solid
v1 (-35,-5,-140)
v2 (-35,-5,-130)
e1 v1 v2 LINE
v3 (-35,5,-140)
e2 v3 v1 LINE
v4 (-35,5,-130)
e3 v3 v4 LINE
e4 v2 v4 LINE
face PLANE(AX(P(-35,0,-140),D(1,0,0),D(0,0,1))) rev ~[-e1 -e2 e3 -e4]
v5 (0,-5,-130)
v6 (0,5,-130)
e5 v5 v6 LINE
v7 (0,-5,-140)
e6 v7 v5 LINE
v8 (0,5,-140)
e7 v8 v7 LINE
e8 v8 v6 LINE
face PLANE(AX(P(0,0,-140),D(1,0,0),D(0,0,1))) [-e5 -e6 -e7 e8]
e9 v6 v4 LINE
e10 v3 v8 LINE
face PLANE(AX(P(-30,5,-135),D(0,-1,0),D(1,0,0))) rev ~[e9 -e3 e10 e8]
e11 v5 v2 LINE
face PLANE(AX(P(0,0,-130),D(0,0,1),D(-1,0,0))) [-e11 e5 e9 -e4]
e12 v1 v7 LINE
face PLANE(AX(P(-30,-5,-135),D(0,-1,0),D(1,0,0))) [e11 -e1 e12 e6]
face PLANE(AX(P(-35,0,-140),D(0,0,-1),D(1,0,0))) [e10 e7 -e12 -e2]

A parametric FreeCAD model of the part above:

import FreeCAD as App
import Part
import Sketcher
from FreeCAD import Vector

doc = App.newDocument("Part")
body = doc.addObject("PartDesign::Body", "Body")

sketch1 = body.newObject("Sketcher::SketchObject", "Sketch")
sketch1.AttachmentSupport = (doc.getObject("XZ_Plane"), [""])
sketch1.MapMode = "FlatFace"
sketch1.addGeometry([
    Part.LineSegment(Vector(-35, -130, 0), Vector(-35, -140, 0)),
    Part.LineSegment(Vector(-35, -140, 0), Vector(0, -140, 0)),
    Part.LineSegment(Vector(0, -140, 0), Vector(0, -130, 0)),
    Part.LineSegment(Vector(0, -130, 0), Vector(-35, -130, 0)),
], False)
sketch1.addConstraint([
    Sketcher.Constraint("Coincident", 0, 2, 1, 1),
    Sketcher.Constraint("Coincident", 1, 2, 2, 1),
    Sketcher.Constraint("Coincident", 2, 2, 3, 1),
    Sketcher.Constraint("Coincident", 3, 2, 0, 1),
    Sketcher.Constraint("Vertical", 0),
    Sketcher.Constraint("Horizontal", 1),
    Sketcher.Constraint("Vertical", 2),
    Sketcher.Constraint("Horizontal", 3),
    Sketcher.Constraint("PointOnObject", 1, 2, -2),
    Sketcher.Constraint("DistanceX", 1, 1, 1, 2, 35.0),
    Sketcher.Constraint("DistanceY", 0, 2, 0, 1, 10.0),
    Sketcher.Constraint("DistanceY", 0, 2, -1, 1, 140.0),
])
pad1 = body.newObject("PartDesign::Pad", "Pad")
pad1.Profile = sketch1
pad1.Length = 10
pad1.Midplane = True

doc.recompute()
